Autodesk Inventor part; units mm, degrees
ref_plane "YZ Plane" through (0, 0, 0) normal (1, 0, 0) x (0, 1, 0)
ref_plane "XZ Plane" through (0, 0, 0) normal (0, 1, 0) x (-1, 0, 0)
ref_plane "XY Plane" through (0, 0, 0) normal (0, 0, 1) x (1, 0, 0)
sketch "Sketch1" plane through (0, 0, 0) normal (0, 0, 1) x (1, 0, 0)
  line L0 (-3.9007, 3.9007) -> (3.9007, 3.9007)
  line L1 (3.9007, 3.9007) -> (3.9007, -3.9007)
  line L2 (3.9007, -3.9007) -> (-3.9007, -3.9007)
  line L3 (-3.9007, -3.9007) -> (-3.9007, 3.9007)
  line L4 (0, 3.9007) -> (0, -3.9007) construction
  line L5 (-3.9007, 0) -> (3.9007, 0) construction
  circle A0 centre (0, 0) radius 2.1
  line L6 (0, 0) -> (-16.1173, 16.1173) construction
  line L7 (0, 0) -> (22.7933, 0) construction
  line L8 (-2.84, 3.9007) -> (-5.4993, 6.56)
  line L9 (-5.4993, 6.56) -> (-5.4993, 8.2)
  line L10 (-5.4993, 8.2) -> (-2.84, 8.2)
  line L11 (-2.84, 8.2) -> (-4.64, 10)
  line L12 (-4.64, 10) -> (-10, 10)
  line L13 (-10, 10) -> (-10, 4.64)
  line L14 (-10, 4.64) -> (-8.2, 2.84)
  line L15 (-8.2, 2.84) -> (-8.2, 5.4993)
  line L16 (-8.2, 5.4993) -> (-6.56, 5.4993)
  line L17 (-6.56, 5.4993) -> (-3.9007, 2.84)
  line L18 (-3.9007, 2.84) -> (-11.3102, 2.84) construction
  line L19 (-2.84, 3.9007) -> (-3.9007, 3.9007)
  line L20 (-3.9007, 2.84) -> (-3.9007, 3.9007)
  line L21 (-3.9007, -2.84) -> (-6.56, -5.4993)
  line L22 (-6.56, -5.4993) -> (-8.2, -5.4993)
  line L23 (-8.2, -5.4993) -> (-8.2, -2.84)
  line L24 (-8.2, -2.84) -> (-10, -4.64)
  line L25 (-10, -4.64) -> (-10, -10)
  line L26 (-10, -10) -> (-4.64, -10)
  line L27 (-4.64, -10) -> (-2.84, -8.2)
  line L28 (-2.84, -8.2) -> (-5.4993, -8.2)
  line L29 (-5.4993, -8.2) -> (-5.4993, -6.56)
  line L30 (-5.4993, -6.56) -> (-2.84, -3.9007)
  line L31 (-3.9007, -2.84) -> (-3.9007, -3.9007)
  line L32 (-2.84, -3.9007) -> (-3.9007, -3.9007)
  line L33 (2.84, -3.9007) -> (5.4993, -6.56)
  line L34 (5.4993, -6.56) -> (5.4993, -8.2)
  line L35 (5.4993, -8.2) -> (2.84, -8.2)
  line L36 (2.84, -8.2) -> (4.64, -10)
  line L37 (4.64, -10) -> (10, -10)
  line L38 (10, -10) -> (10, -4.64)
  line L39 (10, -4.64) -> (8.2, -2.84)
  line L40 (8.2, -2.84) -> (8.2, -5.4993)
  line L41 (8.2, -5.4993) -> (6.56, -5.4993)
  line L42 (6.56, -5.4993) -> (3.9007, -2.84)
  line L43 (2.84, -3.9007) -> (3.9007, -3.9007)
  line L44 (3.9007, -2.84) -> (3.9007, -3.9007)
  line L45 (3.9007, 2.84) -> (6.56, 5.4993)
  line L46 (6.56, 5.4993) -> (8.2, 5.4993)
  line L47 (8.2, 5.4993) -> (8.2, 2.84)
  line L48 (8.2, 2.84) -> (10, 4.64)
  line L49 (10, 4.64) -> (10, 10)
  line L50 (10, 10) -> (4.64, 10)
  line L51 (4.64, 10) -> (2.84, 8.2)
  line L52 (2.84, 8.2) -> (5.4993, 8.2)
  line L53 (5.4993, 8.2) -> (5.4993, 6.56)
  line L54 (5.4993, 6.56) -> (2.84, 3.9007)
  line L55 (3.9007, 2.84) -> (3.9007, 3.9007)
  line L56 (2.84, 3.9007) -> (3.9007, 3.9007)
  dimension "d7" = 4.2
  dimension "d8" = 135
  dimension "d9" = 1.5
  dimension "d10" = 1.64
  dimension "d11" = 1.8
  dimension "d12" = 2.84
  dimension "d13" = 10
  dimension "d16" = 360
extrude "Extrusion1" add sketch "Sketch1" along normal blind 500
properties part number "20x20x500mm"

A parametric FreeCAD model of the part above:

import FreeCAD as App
import Part
import Sketcher
Q = App.Units.Quantity

doc = App.newDocument("Part")
body = doc.addObject("PartDesign::Body", "Body")

sketch1 = body.newObject("Sketcher::SketchObject", "Sketch")
sketch1.AttachmentSupport = (doc.getObject("XY_Plane"), [""])
sketch1.MapMode = "FlatFace"
sketch1.addGeometry([
    Part.LineSegment(App.Vector(-6.6, 5.5, 0), App.Vector(-3.9, 2.8, 0)),
    Part.LineSegment(App.Vector(-3.9, 2.8, 0), App.Vector(-3.9, -2.8, 0)),
    Part.LineSegment(App.Vector(-3.9, -2.8, 0), App.Vector(-6.6, -5.5, 0)),
    Part.LineSegment(App.Vector(-6.6, -5.5, 0), App.Vector(-8.2, -5.5, 0)),
    Part.LineSegment(App.Vector(-8.2, -5.5, 0), App.Vector(-8.2, -2.8, 0)),
    Part.LineSegment(App.Vector(-8.2, -2.8, 0), App.Vector(-10, -4.6, 0)),
    Part.LineSegment(App.Vector(-10, -4.6, 0), App.Vector(-10, -10, 0)),
    Part.LineSegment(App.Vector(-10, -10, 0), App.Vector(-4.6, -10, 0)),
    Part.LineSegment(App.Vector(-4.6, -10, 0), App.Vector(-2.8, -8.2, 0)),
    Part.LineSegment(App.Vector(-2.8, -8.2, 0), App.Vector(-5.5, -8.2, 0)),
    Part.LineSegment(App.Vector(-5.5, -8.2, 0), App.Vector(-5.5, -6.6, 0)),
    Part.LineSegment(App.Vector(-5.5, -6.6, 0), App.Vector(-2.8, -3.9, 0)),
    Part.LineSegment(App.Vector(-2.8, -3.9, 0), App.Vector(2.8, -3.9, 0)),
    Part.LineSegment(App.Vector(2.8, -3.9, 0), App.Vector(5.5, -6.6, 0)),
    Part.LineSegment(App.Vector(5.5, -6.6, 0), App.Vector(5.5, -8.2, 0)),
    Part.LineSegment(App.Vector(5.5, -8.2, 0), App.Vector(2.8, -8.2, 0)),
    Part.LineSegment(App.Vector(2.8, -8.2, 0), App.Vector(4.6, -10, 0)),
    Part.LineSegment(App.Vector(4.6, -10, 0), App.Vector(10, -10, 0)),
    Part.LineSegment(App.Vector(10, -10, 0), App.Vector(10, -4.6, 0)),
    Part.LineSegment(App.Vector(10, -4.6, 0), App.Vector(8.2, -2.8, 0)),
    Part.LineSegment(App.Vector(8.2, -2.8, 0), App.Vector(8.2, -5.5, 0)),
    Part.LineSegment(App.Vector(8.2, -5.5, 0), App.Vector(6.6, -5.5, 0)),
    Part.LineSegment(App.Vector(6.6, -5.5, 0), App.Vector(3.9, -2.8, 0)),
    Part.LineSegment(App.Vector(3.9, -2.8, 0), App.Vector(3.9, 2.8, 0)),
    Part.LineSegment(App.Vector(3.9, 2.8, 0), App.Vector(6.6, 5.5, 0)),
    Part.LineSegment(App.Vector(6.6, 5.5, 0), App.Vector(8.2, 5.5, 0)),
    Part.LineSegment(App.Vector(8.2, 5.5, 0), App.Vector(8.2, 2.8, 0)),
    Part.LineSegment(App.Vector(8.2, 2.8, 0), App.Vector(10, 4.6, 0)),
    Part.LineSegment(App.Vector(10, 4.6, 0), App.Vector(10, 10, 0)),
    Part.LineSegment(App.Vector(10, 10, 0), App.Vector(4.6, 10, 0)),
    Part.LineSegment(App.Vector(4.6, 10, 0), App.Vector(2.8, 8.2, 0)),
    Part.LineSegment(App.Vector(2.8, 8.2, 0), App.Vector(5.5, 8.2, 0)),
    Part.LineSegment(App.Vector(5.5, 8.2, 0), App.Vector(5.5, 6.6, 0)),
    Part.LineSegment(App.Vector(5.5, 6.6, 0), App.Vector(2.8, 3.9, 0)),
    Part.LineSegment(App.Vector(2.8, 3.9, 0), App.Vector(-2.8, 3.9, 0)),
    Part.LineSegment(App.Vector(-2.8, 3.9, 0), App.Vector(-5.5, 6.6, 0)),
    Part.LineSegment(App.Vector(-5.5, 6.6, 0), App.Vector(-5.5, 8.2, 0)),
    Part.LineSegment(App.Vector(-5.5, 8.2, 0), App.Vector(-2.8, 8.2, 0)),
    Part.LineSegment(App.Vector(-2.8, 8.2, 0), App.Vector(-4.6, 10, 0)),
    Part.LineSegment(App.Vector(-4.6, 10, 0), App.Vector(-10, 10, 0)),
    Part.LineSegment(App.Vector(-10, 10, 0), App.Vector(-10, 4.6, 0)),
    Part.LineSegment(App.Vector(-10, 4.6, 0), App.Vector(-8.2, 2.8, 0)),
    Part.LineSegment(App.Vector(-8.2, 2.8, 0), App.Vector(-8.2, 5.5, 0)),
    Part.LineSegment(App.Vector(-8.2, 5.5, 0), App.Vector(-6.6, 5.5, 0)),
    Part.Circle(App.Vector(0, 0, 0), App.Vector(0, 0, 1), 2.1),
], False)
sketch1.addConstraint([
    Sketcher.Constraint("Coincident", 0, 2, 1, 1),
    Sketcher.Constraint("Coincident", 1, 2, 2, 1),
    Sketcher.Constraint("Coincident", 2, 2, 3, 1),
    Sketcher.Constraint("Coincident", 3, 2, 4, 1),
    Sketcher.Constraint("Coincident", 4, 2, 5, 1),
    Sketcher.Constraint("Coincident", 5, 2, 6, 1),
    Sketcher.Constraint("Coincident", 6, 2, 7, 1),
    Sketcher.Constraint("Coincident", 7, 2, 8, 1),
    Sketcher.Constraint("Coincident", 8, 2, 9, 1),
    Sketcher.Constraint("Coincident", 9, 2, 10, 1),
    Sketcher.Constraint("Coincident", 10, 2, 11, 1),
    Sketcher.Constraint("Coincident", 11, 2, 12, 1),
    Sketcher.Constraint("Coincident", 12, 2, 13, 1),
    Sketcher.Constraint("Coincident", 13, 2, 14, 1),
    Sketcher.Constraint("Coincident", 14, 2, 15, 1),
    Sketcher.Constraint("Coincident", 15, 2, 16, 1),
    Sketcher.Constraint("Coincident", 16, 2, 17, 1),
    Sketcher.Constraint("Coincident", 17, 2, 18, 1),
    Sketcher.Constraint("Coincident", 18, 2, 19, 1),
    Sketcher.Constraint("Coincident", 19, 2, 20, 1),
    Sketcher.Constraint("Coincident", 20, 2, 21, 1),
    Sketcher.Constraint("Coincident", 21, 2, 22, 1),
    Sketcher.Constraint("Coincident", 22, 2, 23, 1),
    Sketcher.Constraint("Coincident", 23, 2, 24, 1),
    Sketcher.Constraint("Coincident", 24, 2, 25, 1),
    Sketcher.Constraint("Coincident", 25, 2, 26, 1),
    Sketcher.Constraint("Coincident", 26, 2, 27, 1),
    Sketcher.Constraint("Coincident", 27, 2, 28, 1),
    Sketcher.Constraint("Coincident", 28, 2, 29, 1),
    Sketcher.Constraint("Coincident", 29, 2, 30, 1),
    Sketcher.Constraint("Coincident", 30, 2, 31, 1),
    Sketcher.Constraint("Coincident", 31, 2, 32, 1),
    Sketcher.Constraint("Coincident", 32, 2, 33, 1),
    Sketcher.Constraint("Coincident", 33, 2, 34, 1),
    Sketcher.Constraint("Coincident", 34, 2, 35, 1),
    Sketcher.Constraint("Coincident", 35, 2, 36, 1),
    Sketcher.Constraint("Coincident", 36, 2, 37, 1),
    Sketcher.Constraint("Coincident", 37, 2, 38, 1),
    Sketcher.Constraint("Coincident", 38, 2, 39, 1),
    Sketcher.Constraint("Coincident", 39, 2, 40, 1),
    Sketcher.Constraint("Coincident", 40, 2, 41, 1),
    Sketcher.Constraint("Coincident", 41, 2, 42, 1),
    Sketcher.Constraint("Coincident", 42, 2, 43, 1),
    Sketcher.Constraint("Coincident", 43, 2, 0, 1),
    Sketcher.Constraint("Vertical", 1),
    Sketcher.Constraint("Horizontal", 3),
    Sketcher.Constraint("Vertical", 4),
    Sketcher.Constraint("Vertical", 6),
    Sketcher.Constraint("Horizontal", 7),
    Sketcher.Constraint("Horizontal", 9),
    Sketcher.Constraint("Vertical", 10),
    Sketcher.Constraint("Horizontal", 12),
    Sketcher.Constraint("Vertical", 14),
    Sketcher.Constraint("Horizontal", 15),
    Sketcher.Constraint("Horizontal", 17),
    Sketcher.Constraint("Vertical", 18),
    Sketcher.Constraint("Vertical", 20),
    Sketcher.Constraint("Horizontal", 21),
    Sketcher.Constraint("Vertical", 23),
    Sketcher.Constraint("Horizontal", 25),
    Sketcher.Constraint("Vertical", 26),
    Sketcher.Constraint("Vertical", 28),
    Sketcher.Constraint("Horizontal", 29),
    Sketcher.Constraint("Horizontal", 31),
    Sketcher.Constraint("Vertical", 32),
    Sketcher.Constraint("Horizontal", 34),
    Sketcher.Constraint("Vertical", 36),
    Sketcher.Constraint("Horizontal", 37),
    Sketcher.Constraint("Horizontal", 39),
    Sketcher.Constraint("Vertical", 40),
    Sketcher.Constraint("Vertical", 42),
    Sketcher.Constraint("Horizontal", 43),
    Sketcher.Constraint("Coincident", 44, 3, -1, 1),
    Sketcher.Constraint("Symmetric", 0, 2, 22, 2, -1, 1),
    Sketcher.Constraint("Symmetric", 2, 2, 24, 2, -1, 1),
    Sketcher.Constraint("Symmetric", 4, 2, 26, 2, -1, 1),
    Sketcher.Constraint("Symmetric", 5, 2, 27, 2, -1, 1),
    Sketcher.Constraint("Symmetric", 7, 2, 29, 2, -1, 1),
    Sketcher.Constraint("Symmetric", 8, 2, 30, 2, -1, 1),
    Sketcher.Constraint("Symmetric", 10, 2, 32, 2, -1, 1),
    Sketcher.Constraint("Symmetric", 11, 2, 33, 2, -1, 1),
    Sketcher.Constraint("Symmetric", 13, 2, 35, 2, -1, 1),
    Sketcher.Constraint("Symmetric", 15, 2, 37, 2, -1, 1),
    Sketcher.Constraint("Symmetric", 16, 2, 38, 2, -1, 1),
    Sketcher.Constraint("Symmetric", 18, 2, 40, 2, -1, 1),
    Sketcher.Constraint("Symmetric", 19, 2, 41, 2, -1, 1),
    Sketcher.Constraint("Symmetric", 21, 2, 43, 2, -1, 1),
    Sketcher.Constraint("Symmetric", 10, 2, 13, 2, -2),
    Sketcher.Constraint("Symmetric", 8, 2, 15, 2, -2),
    Sketcher.Constraint("Symmetric", 7, 2, 16, 2, -2),
    Sketcher.Constraint("Symmetric", 5, 2, 18, 2, -2),
    Sketcher.Constraint("Symmetric", 4, 2, 19, 2, -2),
    Sketcher.Constraint("Symmetric", 2, 2, 21, 2, -2),
    Sketcher.Constraint("Perpendicular", 0, 2),
    Sketcher.Constraint("Parallel", 2, 5),
    Sketcher.Constraint("Parallel", 5, 8),
    Sketcher.Constraint("Parallel", 8, 11),
    Sketcher.Constraint("Perpendicular", 11, 13),
    Sketcher.Constraint("Parallel", 13, 16),
    Sketcher.Constraint("Perpendicular", 22, 24),
    Sketcher.Constraint("Perpendicular", 33, 35),
    Sketcher.Constraint("Horizontal", 1, 2, 4, 2),
    Sketcher.Constraint("Vertical", 8, 2, 11, 2),
    Sketcher.Constraint("Equal", 34, 1),
    Sketcher.Constraint("Equal", 37, 4),
    Sketcher.Constraint("Equal", 39, 6),
    Sketcher.Constraint("Equal", 43, 10),
    Sketcher.Constraint("Equal", 5, 8),
    Sketcher.Constraint("Diameter", 44, Q("4.2 mm")),
    Sketcher.Constraint("DistanceX", 5, 2, -1, 1, Q("10 mm")),
    Sketcher.Constraint("DistanceX", 3, 2, 3, 1, Q("1.64 mm")),
    Sketcher.Constraint("DistanceX", 5, 2, 3, 2, Q("1.8 mm")),
    Sketcher.Constraint("DistanceY", -1, 1, 0, 2, Q("2.84 mm")),
    Sketcher.Constraint("DistanceX", 9, 2, 9, 1, Q("2.6593 mm")),
])
pad1 = body.newObject("PartDesign::Pad", "Pad")
pad1.Profile = sketch1
pad1.Length = 500

doc.recompute()
